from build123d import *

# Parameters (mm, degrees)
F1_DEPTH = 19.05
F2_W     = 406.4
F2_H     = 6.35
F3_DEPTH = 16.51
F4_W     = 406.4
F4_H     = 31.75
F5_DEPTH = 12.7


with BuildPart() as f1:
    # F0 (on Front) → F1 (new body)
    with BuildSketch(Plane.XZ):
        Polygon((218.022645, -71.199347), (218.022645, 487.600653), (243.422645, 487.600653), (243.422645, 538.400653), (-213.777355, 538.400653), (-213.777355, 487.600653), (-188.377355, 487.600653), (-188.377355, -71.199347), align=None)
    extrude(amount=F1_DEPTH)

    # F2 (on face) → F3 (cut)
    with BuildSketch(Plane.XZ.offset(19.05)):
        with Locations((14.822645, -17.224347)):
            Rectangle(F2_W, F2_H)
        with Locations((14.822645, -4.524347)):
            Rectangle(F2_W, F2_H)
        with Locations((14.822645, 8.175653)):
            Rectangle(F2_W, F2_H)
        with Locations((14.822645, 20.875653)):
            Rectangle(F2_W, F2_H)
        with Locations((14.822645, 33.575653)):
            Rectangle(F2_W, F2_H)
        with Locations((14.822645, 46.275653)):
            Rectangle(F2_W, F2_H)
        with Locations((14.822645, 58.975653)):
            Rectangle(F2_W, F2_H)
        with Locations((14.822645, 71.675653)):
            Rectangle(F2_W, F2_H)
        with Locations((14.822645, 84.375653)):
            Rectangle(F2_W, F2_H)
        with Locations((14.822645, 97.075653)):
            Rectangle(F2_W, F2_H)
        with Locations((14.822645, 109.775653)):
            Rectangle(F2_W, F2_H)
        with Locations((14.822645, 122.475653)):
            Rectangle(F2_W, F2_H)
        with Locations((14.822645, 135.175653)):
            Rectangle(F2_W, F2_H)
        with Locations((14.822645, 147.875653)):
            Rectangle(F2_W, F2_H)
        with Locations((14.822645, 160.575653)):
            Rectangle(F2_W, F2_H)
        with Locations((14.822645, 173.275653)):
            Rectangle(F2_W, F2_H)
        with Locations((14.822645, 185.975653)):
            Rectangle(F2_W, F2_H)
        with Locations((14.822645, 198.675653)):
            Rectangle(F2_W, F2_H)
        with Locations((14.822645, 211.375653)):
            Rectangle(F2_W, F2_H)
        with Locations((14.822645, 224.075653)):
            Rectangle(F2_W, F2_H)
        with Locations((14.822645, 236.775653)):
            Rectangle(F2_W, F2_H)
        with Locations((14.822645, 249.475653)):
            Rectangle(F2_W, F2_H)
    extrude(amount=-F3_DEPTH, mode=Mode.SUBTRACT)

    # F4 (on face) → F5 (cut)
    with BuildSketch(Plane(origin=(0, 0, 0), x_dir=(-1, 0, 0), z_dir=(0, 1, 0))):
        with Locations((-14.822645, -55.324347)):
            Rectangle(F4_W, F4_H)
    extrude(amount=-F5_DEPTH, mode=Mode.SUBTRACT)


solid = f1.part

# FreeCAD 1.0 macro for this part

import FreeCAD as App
import Part
import Sketcher
from FreeCAD import Vector
Q = App.Units.Quantity

doc = App.newDocument("Part")
params = doc.addObject("Spreadsheet::Sheet", "Params")
for row, (alias, value) in enumerate([
    ("sketch1_width", "1 in"),
    ("sketch1_width2", "18 in"),
    ("sketch1_height", "22 in"),
    ("sketch1_height2", "2 in"),
    ("pad1_length", "0.75 in"),
    ("sketch2_width", "16 in"),
    ("sketch2_height", "0.25 in"),
    ("pocket1_length", "0.65 in"),
    ("sketch3_width", "16 in"),
    ("sketch3_height", "1.25 in"),
    ("pocket2_length", "0.5 in"),
], start=1):
    params.set(f"A{row}", alias)
    params.set(f"B{row}", "=" + value)
    params.setAlias(f"B{row}", alias)

body = doc.addObject("PartDesign::Body", "Body")

sketch1 = body.newObject("Sketcher::SketchObject", "Sketch")
sketch1.AttachmentSupport = (doc.getObject("XZ_Plane"), [""])
sketch1.MapMode = "FlatFace"
sketch1.addGeometry([
    Part.LineSegment(Vector(218, -71, 0), Vector(218, 488, 0)),
    Part.LineSegment(Vector(218, 488, 0), Vector(243, 488, 0)),
    Part.LineSegment(Vector(243, 488, 0), Vector(243, 538, 0)),
    Part.LineSegment(Vector(243, 538, 0), Vector(-214, 538, 0)),
    Part.LineSegment(Vector(-214, 538, 0), Vector(-214, 488, 0)),
    Part.LineSegment(Vector(-214, 488, 0), Vector(-188, 488, 0)),
    Part.LineSegment(Vector(-188, 488, 0), Vector(-188, -71, 0)),
    Part.LineSegment(Vector(-188, -71, 0), Vector(218, -71, 0)),
], False)
sketch1.addConstraint([
    Sketcher.Constraint("Coincident", 0, 2, 1, 1),
    Sketcher.Constraint("Coincident", 1, 2, 2, 1),
    Sketcher.Constraint("Coincident", 2, 2, 3, 1),
    Sketcher.Constraint("Coincident", 3, 2, 4, 1),
    Sketcher.Constraint("Coincident", 4, 2, 5, 1),
    Sketcher.Constraint("Coincident", 5, 2, 6, 1),
    Sketcher.Constraint("Coincident", 6, 2, 7, 1),
    Sketcher.Constraint("Coincident", 7, 2, 0, 1),
    Sketcher.Constraint("Vertical", 0),
    Sketcher.Constraint("Horizontal", 1),
    Sketcher.Constraint("Vertical", 2),
    Sketcher.Constraint("Horizontal", 3),
    Sketcher.Constraint("Vertical", 4),
    Sketcher.Constraint("Horizontal", 5),
    Sketcher.Constraint("Vertical", 6),
    Sketcher.Constraint("Horizontal", 7),
    Sketcher.Constraint("Horizontal", 1, 2, 4, 2),
    Sketcher.Constraint("Equal", 1, 5),
    Sketcher.Constraint("DistanceX", 1, 1, 1, 2, Q("1 in")),
    Sketcher.Constraint("DistanceX", 3, 2, 3, 1, Q("18 in")),
    Sketcher.Constraint("DistanceY", 0, 1, 0, 2, Q("22 in")),
    Sketcher.Constraint("DistanceY", 2, 1, 2, 2, Q("2 in")),
    Sketcher.Constraint("DistanceX", -1, 1, 0, 2, 218.022645),
    Sketcher.Constraint("DistanceY", -1, 1, 0, 2, 487.600653),
])
sketch1.setExpression("Constraints[18]", "Params.sketch1_width")
sketch1.setExpression("Constraints[19]", "Params.sketch1_width2")
sketch1.setExpression("Constraints[20]", "Params.sketch1_height")
sketch1.setExpression("Constraints[21]", "Params.sketch1_height2")
pad1 = body.newObject("PartDesign::Pad", "Pad")
pad1.Profile = sketch1
pad1.setExpression("Length", "Params.pad1_length")

sketch2 = body.newObject("Sketcher::SketchObject", "Sketch001")
sketch2.AttachmentSupport = (doc.getObject("XZ_Plane"), [""])
sketch2.MapMode = "FlatFace"
sketch2.AttachmentOffset = App.Placement(Vector(0, 0, 0.75 * 25.4), App.Rotation())
sketch2.addGeometry([
    Part.LineSegment(Vector(-188, -14, 0), Vector(-188, -20, 0)),
    Part.LineSegment(Vector(-188, -20, 0), Vector(218, -20, 0)),
    Part.LineSegment(Vector(218, -20, 0), Vector(218, -14, 0)),
    Part.LineSegment(Vector(218, -14, 0), Vector(-188, -14, 0)),
    Part.LineSegment(Vector(-188, -1, 0), Vector(-188, -8, 0)),
    Part.LineSegment(Vector(-188, -8, 0), Vector(218, -8, 0)),
    Part.LineSegment(Vector(218, -8, 0), Vector(218, -1, 0)),
    Part.LineSegment(Vector(218, -1, 0), Vector(-188, -1, 0)),
    Part.LineSegment(Vector(-188, 11, 0), Vector(-188, 5, 0)),
    Part.LineSegment(Vector(-188, 5, 0), Vector(218, 5, 0)),
    Part.LineSegment(Vector(218, 5, 0), Vector(218, 11, 0)),
    Part.LineSegment(Vector(218, 11, 0), Vector(-188, 11, 0)),
    Part.LineSegment(Vector(-188, 24, 0), Vector(-188, 18, 0)),
    Part.LineSegment(Vector(-188, 18, 0), Vector(218, 18, 0)),
    Part.LineSegment(Vector(218, 18, 0), Vector(218, 24, 0)),
    Part.LineSegment(Vector(218, 24, 0), Vector(-188, 24, 0)),
    Part.LineSegment(Vector(-188, 37, 0), Vector(-188, 30, 0)),
    Part.LineSegment(Vector(-188, 30, 0), Vector(218, 30, 0)),
    Part.LineSegment(Vector(218, 30, 0), Vector(218, 37, 0)),
    Part.LineSegment(Vector(218, 37, 0), Vector(-188, 37, 0)),
    Part.LineSegment(Vector(-188, 49, 0), Vector(-188, 43, 0)),
    Part.LineSegment(Vector(-188, 43, 0), Vector(218, 43, 0)),
    Part.LineSegment(Vector(218, 43, 0), Vector(218, 49, 0)),
    Part.LineSegment(Vector(218, 49, 0), Vector(-188, 49, 0)),
    Part.LineSegment(Vector(-188, 62, 0), Vector(-188, 56, 0)),
    Part.LineSegment(Vector(-188, 56, 0), Vector(218, 56, 0)),
    Part.LineSegment(Vector(218, 56, 0), Vector(218, 62, 0)),
    Part.LineSegment(Vector(218, 62, 0), Vector(-188, 62, 0)),
    Part.LineSegment(Vector(-188, 75, 0), Vector(-188, 69, 0)),
    Part.LineSegment(Vector(-188, 69, 0), Vector(218, 69, 0)),
    Part.LineSegment(Vector(218, 69, 0), Vector(218, 75, 0)),
    Part.LineSegment(Vector(218, 75, 0), Vector(-188, 75, 0)),
    Part.LineSegment(Vector(-188, 88, 0), Vector(-188, 81, 0)),
    Part.LineSegment(Vector(-188, 81, 0), Vector(218, 81, 0)),
    Part.LineSegment(Vector(218, 81, 0), Vector(218, 88, 0)),
    Part.LineSegment(Vector(218, 88, 0), Vector(-188, 88, 0)),
    Part.LineSegment(Vector(-188, 100, 0), Vector(-188, 94, 0)),
    Part.LineSegment(Vector(-188, 94, 0), Vector(218, 94, 0)),
    Part.LineSegment(Vector(218, 94, 0), Vector(218, 100, 0)),
    Part.LineSegment(Vector(218, 100, 0), Vector(-188, 100, 0)),
    Part.LineSegment(Vector(-188, 113, 0), Vector(-188, 107, 0)),
    Part.LineSegment(Vector(-188, 107, 0), Vector(218, 107, 0)),
    Part.LineSegment(Vector(218, 107, 0), Vector(218, 113, 0)),
    Part.LineSegment(Vector(218, 113, 0), Vector(-188, 113, 0)),
    Part.LineSegment(Vector(-188, 126, 0), Vector(-188, 119, 0)),
    Part.LineSegment(Vector(-188, 119, 0), Vector(218, 119, 0)),
    Part.LineSegment(Vector(218, 119, 0), Vector(218, 126, 0)),
    Part.LineSegment(Vector(218, 126, 0), Vector(-188, 126, 0)),
    Part.LineSegment(Vector(-188, 138, 0), Vector(-188, 132, 0)),
    Part.LineSegment(Vector(-188, 132, 0), Vector(218, 132, 0)),
    Part.LineSegment(Vector(218, 132, 0), Vector(218, 138, 0)),
    Part.LineSegment(Vector(218, 138, 0), Vector(-188, 138, 0)),
    Part.LineSegment(Vector(-188, 151, 0), Vector(-188, 145, 0)),
    Part.LineSegment(Vector(-188, 145, 0), Vector(218, 145, 0)),
    Part.LineSegment(Vector(218, 145, 0), Vector(218, 151, 0)),
    Part.LineSegment(Vector(218, 151, 0), Vector(-188, 151, 0)),
    Part.LineSegment(Vector(-188, 164, 0), Vector(-188, 157, 0)),
    Part.LineSegment(Vector(-188, 157, 0), Vector(218, 157, 0)),
    Part.LineSegment(Vector(218, 157, 0), Vector(218, 164, 0)),
    Part.LineSegment(Vector(218, 164, 0), Vector(-188, 164, 0)),
    Part.LineSegment(Vector(-188, 176, 0), Vector(-188, 170, 0)),
    Part.LineSegment(Vector(-188, 170, 0), Vector(218, 170, 0)),
    Part.LineSegment(Vector(218, 170, 0), Vector(218, 176, 0)),
    Part.LineSegment(Vector(218, 176, 0), Vector(-188, 176, 0)),
    Part.LineSegment(Vector(-188, 189, 0), Vector(-188, 183, 0)),
    Part.LineSegment(Vector(-188, 183, 0), Vector(218, 183, 0)),
    Part.LineSegment(Vector(218, 183, 0), Vector(218, 189, 0)),
    Part.LineSegment(Vector(218, 189, 0), Vector(-188, 189, 0)),
    Part.LineSegment(Vector(-188, 202, 0), Vector(-188, 196, 0)),
    Part.LineSegment(Vector(-188, 196, 0), Vector(218, 196, 0)),
    Part.LineSegment(Vector(218, 196, 0), Vector(218, 202, 0)),
    Part.LineSegment(Vector(218, 202, 0), Vector(-188, 202, 0)),
    Part.LineSegment(Vector(-188, 215, 0), Vector(-188, 208, 0)),
    Part.LineSegment(Vector(-188, 208, 0), Vector(218, 208, 0)),
    Part.LineSegment(Vector(218, 208, 0), Vector(218, 215, 0)),
    Part.LineSegment(Vector(218, 215, 0), Vector(-188, 215, 0)),
    Part.LineSegment(Vector(-188, 227, 0), Vector(-188, 221, 0)),
    Part.LineSegment(Vector(-188, 221, 0), Vector(218, 221, 0)),
    Part.LineSegment(Vector(218, 221, 0), Vector(218, 227, 0)),
    Part.LineSegment(Vector(218, 227, 0), Vector(-188, 227, 0)),
    Part.LineSegment(Vector(-188, 240, 0), Vector(-188, 234, 0)),
    Part.LineSegment(Vector(-188, 234, 0), Vector(218, 234, 0)),
    Part.LineSegment(Vector(218, 234, 0), Vector(218, 240, 0)),
    Part.LineSegment(Vector(218, 240, 0), Vector(-188, 240, 0)),
    Part.LineSegment(Vector(-188, 253, 0), Vector(-188, 246, 0)),
    Part.LineSegment(Vector(-188, 246, 0), Vector(218, 246, 0)),
    Part.LineSegment(Vector(218, 246, 0), Vector(218, 253, 0)),
    Part.LineSegment(Vector(218, 253, 0), Vector(-188, 253, 0)),
], False)
sketch2.addConstraint([
    Sketcher.Constraint("Coincident", 0, 2, 1, 1),
    Sketcher.Constraint("Coincident", 1, 2, 2, 1),
    Sketcher.Constraint("Coincident", 2, 2, 3, 1),
    Sketcher.Constraint("Coincident", 3, 2, 0, 1),
    Sketcher.Constraint("Coincident", 4, 2, 5, 1),
    Sketcher.Constraint("Coincident", 5, 2, 6, 1),
    Sketcher.Constraint("Coincident", 6, 2, 7, 1),
    Sketcher.Constraint("Coincident", 7, 2, 4, 1),
    Sketcher.Constraint("Coincident", 8, 2, 9, 1),
    Sketcher.Constraint("Coincident", 9, 2, 10, 1),
    Sketcher.Constraint("Coincident", 10, 2, 11, 1),
    Sketcher.Constraint("Coincident", 11, 2, 8, 1),
    Sketcher.Constraint("Coincident", 12, 2, 13, 1),
    Sketcher.Constraint("Coincident", 13, 2, 14, 1),
    Sketcher.Constraint("Coincident", 14, 2, 15, 1),
    Sketcher.Constraint("Coincident", 15, 2, 12, 1),
    Sketcher.Constraint("Coincident", 16, 2, 17, 1),
    Sketcher.Constraint("Coincident", 17, 2, 18, 1),
    Sketcher.Constraint("Coincident", 18, 2, 19, 1),
    Sketcher.Constraint("Coincident", 19, 2, 16, 1),
    Sketcher.Constraint("Coincident", 20, 2, 21, 1),
    Sketcher.Constraint("Coincident", 21, 2, 22, 1),
    Sketcher.Constraint("Coincident", 22, 2, 23, 1),
    Sketcher.Constraint("Coincident", 23, 2, 20, 1),
    Sketcher.Constraint("Coincident", 24, 2, 25, 1),
    Sketcher.Constraint("Coincident", 25, 2, 26, 1),
    Sketcher.Constraint("Coincident", 26, 2, 27, 1),
    Sketcher.Constraint("Coincident", 27, 2, 24, 1),
    Sketcher.Constraint("Coincident", 28, 2, 29, 1),
    Sketcher.Constraint("Coincident", 29, 2, 30, 1),
    Sketcher.Constraint("Coincident", 30, 2, 31, 1),
    Sketcher.Constraint("Coincident", 31, 2, 28, 1),
    Sketcher.Constraint("Coincident", 32, 2, 33, 1),
    Sketcher.Constraint("Coincident", 33, 2, 34, 1),
    Sketcher.Constraint("Coincident", 34, 2, 35, 1),
    Sketcher.Constraint("Coincident", 35, 2, 32, 1),
    Sketcher.Constraint("Coincident", 36, 2, 37, 1),
    Sketcher.Constraint("Coincident", 37, 2, 38, 1),
    Sketcher.Constraint("Coincident", 38, 2, 39, 1),
    Sketcher.Constraint("Coincident", 39, 2, 36, 1),
    Sketcher.Constraint("Coincident", 40, 2, 41, 1),
    Sketcher.Constraint("Coincident", 41, 2, 42, 1),
    Sketcher.Constraint("Coincident", 42, 2, 43, 1),
    Sketcher.Constraint("Coincident", 43, 2, 40, 1),
    Sketcher.Constraint("Coincident", 44, 2, 45, 1),
    Sketcher.Constraint("Coincident", 45, 2, 46, 1),
    Sketcher.Constraint("Coincident", 46, 2, 47, 1),
    Sketcher.Constraint("Coincident", 47, 2, 44, 1),
    Sketcher.Constraint("Coincident", 48, 2, 49, 1),
    Sketcher.Constraint("Coincident", 49, 2, 50, 1),
    Sketcher.Constraint("Coincident", 50, 2, 51, 1),
    Sketcher.Constraint("Coincident", 51, 2, 48, 1),
    Sketcher.Constraint("Coincident", 52, 2, 53, 1),
    Sketcher.Constraint("Coincident", 53, 2, 54, 1),
    Sketcher.Constraint("Coincident", 54, 2, 55, 1),
    Sketcher.Constraint("Coincident", 55, 2, 52, 1),
    Sketcher.Constraint("Coincident", 56, 2, 57, 1),
    Sketcher.Constraint("Coincident", 57, 2, 58, 1),
    Sketcher.Constraint("Coincident", 58, 2, 59, 1),
    Sketcher.Constraint("Coincident", 59, 2, 56, 1),
    Sketcher.Constraint("Coincident", 60, 2, 61, 1),
    Sketcher.Constraint("Coincident", 61, 2, 62, 1),
    Sketcher.Constraint("Coincident", 62, 2, 63, 1),
    Sketcher.Constraint("Coincident", 63, 2, 60, 1),
    Sketcher.Constraint("Coincident", 64, 2, 65, 1),
    Sketcher.Constraint("Coincident", 65, 2, 66, 1),
    Sketcher.Constraint("Coincident", 66, 2, 67, 1),
    Sketcher.Constraint("Coincident", 67, 2, 64, 1),
    Sketcher.Constraint("Coincident", 68, 2, 69, 1),
    Sketcher.Constraint("Coincident", 69, 2, 70, 1),
    Sketcher.Constraint("Coincident", 70, 2, 71, 1),
    Sketcher.Constraint("Coincident", 71, 2, 68, 1),
    Sketcher.Constraint("Coincident", 72, 2, 73, 1),
    Sketcher.Constraint("Coincident", 73, 2, 74, 1),
    Sketcher.Constraint("Coincident", 74, 2, 75, 1),
    Sketcher.Constraint("Coincident", 75, 2, 72, 1),
    Sketcher.Constraint("Coincident", 76, 2, 77, 1),
    Sketcher.Constraint("Coincident", 77, 2, 78, 1),
    Sketcher.Constraint("Coincident", 78, 2, 79, 1),
    Sketcher.Constraint("Coincident", 79, 2, 76, 1),
    Sketcher.Constraint("Coincident", 80, 2, 81, 1),
    Sketcher.Constraint("Coincident", 81, 2, 82, 1),
    Sketcher.Constraint("Coincident", 82, 2, 83, 1),
    Sketcher.Constraint("Coincident", 83, 2, 80, 1),
    Sketcher.Constraint("Coincident", 84, 2, 85, 1),
    Sketcher.Constraint("Coincident", 85, 2, 86, 1),
    Sketcher.Constraint("Coincident", 86, 2, 87, 1),
    Sketcher.Constraint("Coincident", 87, 2, 84, 1),
    Sketcher.Constraint("Vertical", 0),
    Sketcher.Constraint("Horizontal", 1),
    Sketcher.Constraint("Vertical", 2),
    Sketcher.Constraint("Horizontal", 3),
    Sketcher.Constraint("Vertical", 4),
    Sketcher.Constraint("Horizontal", 5),
    Sketcher.Constraint("Vertical", 6),
    Sketcher.Constraint("Horizontal", 7),
    Sketcher.Constraint("Vertical", 8),
    Sketcher.Constraint("Horizontal", 9),
    Sketcher.Constraint("Vertical", 10),
    Sketcher.Constraint("Horizontal", 11),
    Sketcher.Constraint("Vertical", 12),
    Sketcher.Constraint("Horizontal", 13),
    Sketcher.Constraint("Vertical", 14),
    Sketcher.Constraint("Horizontal", 15),
    Sketcher.Constraint("Vertical", 16),
    Sketcher.Constraint("Horizontal", 17),
    Sketcher.Constraint("Vertical", 18),
    Sketcher.Constraint("Horizontal", 19),
    Sketcher.Constraint("Vertical", 20),
    Sketcher.Constraint("Horizontal", 21),
    Sketcher.Constraint("Vertical", 22),
    Sketcher.Constraint("Horizontal", 23),
    Sketcher.Constraint("Vertical", 24),
    Sketcher.Constraint("Horizontal", 25),
    Sketcher.Constraint("Vertical", 26),
    Sketcher.Constraint("Horizontal", 27),
    Sketcher.Constraint("Vertical", 28),
    Sketcher.Constraint("Horizontal", 29),
    Sketcher.Constraint("Vertical", 30),
    Sketcher.Constraint("Horizontal", 31),
    Sketcher.Constraint("Vertical", 32),
    Sketcher.Constraint("Horizontal", 33),
    Sketcher.Constraint("Vertical", 34),
    Sketcher.Constraint("Horizontal", 35),
    Sketcher.Constraint("Vertical", 36),
    Sketcher.Constraint("Horizontal", 37),
    Sketcher.Constraint("Vertical", 38),
    Sketcher.Constraint("Horizontal", 39),
    Sketcher.Constraint("Vertical", 40),
    Sketcher.Constraint("Horizontal", 41),
    Sketcher.Constraint("Vertical", 42),
    Sketcher.Constraint("Horizontal", 43),
    Sketcher.Constraint("Vertical", 44),
    Sketcher.Constraint("Horizontal", 45),
    Sketcher.Constraint("Vertical", 46),
    Sketcher.Constraint("Horizontal", 47),
    Sketcher.Constraint("Vertical", 48),
    Sketcher.Constraint("Horizontal", 49),
    Sketcher.Constraint("Vertical", 50),
    Sketcher.Constraint("Horizontal", 51),
    Sketcher.Constraint("Vertical", 52),
    Sketcher.Constraint("Horizontal", 53),
    Sketcher.Constraint("Vertical", 54),
    Sketcher.Constraint("Horizontal", 55),
    Sketcher.Constraint("Vertical", 56),
    Sketcher.Constraint("Horizontal", 57),
    Sketcher.Constraint("Vertical", 58),
    Sketcher.Constraint("Horizontal", 59),
    Sketcher.Constraint("Vertical", 60),
    Sketcher.Constraint("Horizontal", 61),
    Sketcher.Constraint("Vertical", 62),
    Sketcher.Constraint("Horizontal", 63),
    Sketcher.Constraint("Vertical", 64),
    Sketcher.Constraint("Horizontal", 65),
    Sketcher.Constraint("Vertical", 66),
    Sketcher.Constraint("Horizontal", 67),
    Sketcher.Constraint("Vertical", 68),
    Sketcher.Constraint("Horizontal", 69),
    Sketcher.Constraint("Vertical", 70),
    Sketcher.Constraint("Horizontal", 71),
    Sketcher.Constraint("Vertical", 72),
    Sketcher.Constraint("Horizontal", 73),
    Sketcher.Constraint("Vertical", 74),
    Sketcher.Constraint("Horizontal", 75),
    Sketcher.Constraint("Vertical", 76),
    Sketcher.Constraint("Horizontal", 77),
    Sketcher.Constraint("Vertical", 78),
    Sketcher.Constraint("Horizontal", 79),
    Sketcher.Constraint("Vertical", 80),
    Sketcher.Constraint("Horizontal", 81),
    Sketcher.Constraint("Vertical", 82),
    Sketcher.Constraint("Horizontal", 83),
    Sketcher.Constraint("Vertical", 84),
    Sketcher.Constraint("Horizontal", 85),
    Sketcher.Constraint("Vertical", 86),
    Sketcher.Constraint("Horizontal", 87),
    Sketcher.Constraint("Vertical", 3, 2, 4, 2),
    Sketcher.Constraint("Vertical", 2, 2, 5, 2),
    Sketcher.Constraint("Vertical", 7, 2, 8, 2),
    Sketcher.Constraint("Vertical", 6, 2, 9, 2),
    Sketcher.Constraint("Vertical", 11, 2, 12, 2),
    Sketcher.Constraint("Vertical", 10, 2, 13, 2),
    Sketcher.Constraint("Vertical", 15, 2, 16, 2),
    Sketcher.Constraint("Vertical", 14, 2, 17, 2),
    Sketcher.Constraint("Vertical", 19, 2, 20, 2),
    Sketcher.Constraint("Vertical", 18, 2, 21, 2),
    Sketcher.Constraint("Vertical", 23, 2, 24, 2),
    Sketcher.Constraint("Vertical", 22, 2, 25, 2),
    Sketcher.Constraint("Vertical", 27, 2, 28, 2),
    Sketcher.Constraint("Vertical", 26, 2, 29, 2),
    Sketcher.Constraint("Vertical", 31, 2, 32, 2),
    Sketcher.Constraint("Vertical", 30, 2, 33, 2),
    Sketcher.Constraint("Vertical", 35, 2, 36, 2),
    Sketcher.Constraint("Vertical", 34, 2, 37, 2),
    Sketcher.Constraint("Vertical", 39, 2, 40, 2),
    Sketcher.Constraint("Vertical", 38, 2, 41, 2),
    Sketcher.Constraint("Vertical", 43, 2, 44, 2),
    Sketcher.Constraint("Vertical", 42, 2, 45, 2),
    Sketcher.Constraint("Vertical", 47, 2, 48, 2),
    Sketcher.Constraint("Vertical", 46, 2, 49, 2),
    Sketcher.Constraint("Vertical", 51, 2, 52, 2),
    Sketcher.Constraint("Vertical", 50, 2, 53, 2),
    Sketcher.Constraint("Vertical", 55, 2, 56, 2),
    Sketcher.Constraint("Vertical", 54, 2, 57, 2),
    Sketcher.Constraint("Vertical", 59, 2, 60, 2),
    Sketcher.Constraint("Vertical", 58, 2, 61, 2),
    Sketcher.Constraint("Vertical", 63, 2, 64, 2),
    Sketcher.Constraint("Vertical", 62, 2, 65, 2),
    Sketcher.Constraint("Vertical", 67, 2, 68, 2),
    Sketcher.Constraint("Vertical", 66, 2, 69, 2),
    Sketcher.Constraint("Vertical", 71, 2, 72, 2),
    Sketcher.Constraint("Vertical", 70, 2, 73, 2),
    Sketcher.Constraint("Vertical", 75, 2, 76, 2),
    Sketcher.Constraint("Vertical", 74, 2, 77, 2),
    Sketcher.Constraint("Vertical", 79, 2, 80, 2),
    Sketcher.Constraint("Vertical", 78, 2, 81, 2),
    Sketcher.Constraint("Vertical", 83, 2, 84, 2),
    Sketcher.Constraint("Vertical", 82, 2, 85, 2),
    Sketcher.Constraint("Equal", 2, 4),
    Sketcher.Constraint("Equal", 6, 8),
    Sketcher.Constraint("Equal", 10, 12),
    Sketcher.Constraint("Equal", 14, 16),
    Sketcher.Constraint("Equal", 18, 20),
    Sketcher.Constraint("Equal", 22, 24),
    Sketcher.Constraint("Equal", 26, 28),
    Sketcher.Constraint("Equal", 30, 32),
    Sketcher.Constraint("Equal", 34, 36),
    Sketcher.Constraint("Equal", 38, 40),
    Sketcher.Constraint("Equal", 42, 44),
    Sketcher.Constraint("Equal", 46, 48),
    Sketcher.Constraint("Equal", 50, 52),
    Sketcher.Constraint("Equal", 54, 56),
    Sketcher.Constraint("Equal", 58, 60),
    Sketcher.Constraint("Equal", 62, 64),
    Sketcher.Constraint("Equal", 66, 68),
    Sketcher.Constraint("Equal", 70, 72),
    Sketcher.Constraint("Equal", 74, 76),
    Sketcher.Constraint("Equal", 78, 80),
    Sketcher.Constraint("Equal", 82, 84),
    Sketcher.Constraint("DistanceX", 1, 1, 1, 2, Q("16 in")),
    Sketcher.Constraint("DistanceY", 0, 2, 0, 1, Q("0.25 in")),
    Sketcher.Constraint("DistanceX", 0, 2, -1, 1, 188.377355),
    Sketcher.Constraint("DistanceY", 0, 2, -1, 1, 20.399347),
    Sketcher.Constraint("DistanceY", 4, 2, -1, 1, 7.699347),
    Sketcher.Constraint("DistanceY", -1, 1, 8, 2, 5.000653),
    Sketcher.Constraint("DistanceY", -1, 1, 12, 2, 17.700653),
    Sketcher.Constraint("DistanceY", -1, 1, 16, 2, 30.400653),
    Sketcher.Constraint("DistanceY", -1, 1, 20, 2, 43.100653),
    Sketcher.Constraint("DistanceY", -1, 1, 24, 2, 55.800653),
    Sketcher.Constraint("DistanceY", -1, 1, 28, 2, 68.500653),
    Sketcher.Constraint("DistanceY", -1, 1, 32, 2, 81.200653),
    Sketcher.Constraint("DistanceY", -1, 1, 36, 2, 93.900653),
    Sketcher.Constraint("DistanceY", -1, 1, 40, 2, 106.600653),
    Sketcher.Constraint("DistanceY", -1, 1, 44, 2, 119.300653),
    Sketcher.Constraint("DistanceY", -1, 1, 48, 2, 132.000653),
    Sketcher.Constraint("DistanceY", -1, 1, 52, 2, 144.700653),
    Sketcher.Constraint("DistanceY", -1, 1, 56, 2, 157.400653),
    Sketcher.Constraint("DistanceY", -1, 1, 60, 2, 170.100653),
    Sketcher.Constraint("DistanceY", -1, 1, 64, 2, 182.800653),
    Sketcher.Constraint("DistanceY", -1, 1, 68, 2, 195.500653),
    Sketcher.Constraint("DistanceY", -1, 1, 72, 2, 208.200653),
    Sketcher.Constraint("DistanceY", -1, 1, 76, 2, 220.900653),
    Sketcher.Constraint("DistanceY", -1, 1, 80, 2, 233.600653),
    Sketcher.Constraint("DistanceY", -1, 1, 84, 2, 246.300653),
])
sketch2.setExpression("Constraints[239]", "Params.sketch2_width")
sketch2.setExpression("Constraints[240]", "Params.sketch2_height")
pocket1 = body.newObject("PartDesign::Pocket", "Pocket")
pocket1.Profile = sketch2
pocket1.setExpression("Length", "Params.pocket1_length")

sketch3 = body.newObject("Sketcher::SketchObject", "Sketch002")
sketch3.AttachmentSupport = (doc.getObject("XZ_Plane"), [""])
sketch3.MapMode = "FlatFace"
sketch3.addGeometry([
    Part.LineSegment(Vector(218, -39, 0), Vector(218, -71, 0)),
    Part.LineSegment(Vector(218, -71, 0), Vector(-188, -71, 0)),
    Part.LineSegment(Vector(-188, -71, 0), Vector(-188, -39, 0)),
    Part.LineSegment(Vector(-188, -39, 0), Vector(218, -39, 0)),
], False)
sketch3.addConstraint([
    Sketcher.Constraint("Coincident", 0, 2, 1, 1),
    Sketcher.Constraint("Coincident", 1, 2, 2, 1),
    Sketcher.Constraint("Coincident", 2, 2, 3, 1),
    Sketcher.Constraint("Coincident", 3, 2, 0, 1),
    Sketcher.Constraint("Vertical", 0),
    Sketcher.Constraint("Horizontal", 1),
    Sketcher.Constraint("Vertical", 2),
    Sketcher.Constraint("Horizontal", 3),
    Sketcher.Constraint("DistanceX", 1, 2, 1, 1, Q("16 in")),
    Sketcher.Constraint("DistanceY", 0, 2, 0, 1, Q("1.25 in")),
    Sketcher.Constraint("DistanceX", -1, 1, 0, 2, 218.022645),
    Sketcher.Constraint("DistanceY", 0, 2, -1, 1, 71.199347),
])
sketch3.setExpression("Constraints[8]", "Params.sketch3_width")
sketch3.setExpression("Constraints[9]", "Params.sketch3_height")
pocket2 = body.newObject("PartDesign::Pocket", "Pocket001")
pocket2.Profile = sketch3
pocket2.setExpression("Length", "Params.pocket2_length")
pocket2.Reversed = True

doc.recompute()
